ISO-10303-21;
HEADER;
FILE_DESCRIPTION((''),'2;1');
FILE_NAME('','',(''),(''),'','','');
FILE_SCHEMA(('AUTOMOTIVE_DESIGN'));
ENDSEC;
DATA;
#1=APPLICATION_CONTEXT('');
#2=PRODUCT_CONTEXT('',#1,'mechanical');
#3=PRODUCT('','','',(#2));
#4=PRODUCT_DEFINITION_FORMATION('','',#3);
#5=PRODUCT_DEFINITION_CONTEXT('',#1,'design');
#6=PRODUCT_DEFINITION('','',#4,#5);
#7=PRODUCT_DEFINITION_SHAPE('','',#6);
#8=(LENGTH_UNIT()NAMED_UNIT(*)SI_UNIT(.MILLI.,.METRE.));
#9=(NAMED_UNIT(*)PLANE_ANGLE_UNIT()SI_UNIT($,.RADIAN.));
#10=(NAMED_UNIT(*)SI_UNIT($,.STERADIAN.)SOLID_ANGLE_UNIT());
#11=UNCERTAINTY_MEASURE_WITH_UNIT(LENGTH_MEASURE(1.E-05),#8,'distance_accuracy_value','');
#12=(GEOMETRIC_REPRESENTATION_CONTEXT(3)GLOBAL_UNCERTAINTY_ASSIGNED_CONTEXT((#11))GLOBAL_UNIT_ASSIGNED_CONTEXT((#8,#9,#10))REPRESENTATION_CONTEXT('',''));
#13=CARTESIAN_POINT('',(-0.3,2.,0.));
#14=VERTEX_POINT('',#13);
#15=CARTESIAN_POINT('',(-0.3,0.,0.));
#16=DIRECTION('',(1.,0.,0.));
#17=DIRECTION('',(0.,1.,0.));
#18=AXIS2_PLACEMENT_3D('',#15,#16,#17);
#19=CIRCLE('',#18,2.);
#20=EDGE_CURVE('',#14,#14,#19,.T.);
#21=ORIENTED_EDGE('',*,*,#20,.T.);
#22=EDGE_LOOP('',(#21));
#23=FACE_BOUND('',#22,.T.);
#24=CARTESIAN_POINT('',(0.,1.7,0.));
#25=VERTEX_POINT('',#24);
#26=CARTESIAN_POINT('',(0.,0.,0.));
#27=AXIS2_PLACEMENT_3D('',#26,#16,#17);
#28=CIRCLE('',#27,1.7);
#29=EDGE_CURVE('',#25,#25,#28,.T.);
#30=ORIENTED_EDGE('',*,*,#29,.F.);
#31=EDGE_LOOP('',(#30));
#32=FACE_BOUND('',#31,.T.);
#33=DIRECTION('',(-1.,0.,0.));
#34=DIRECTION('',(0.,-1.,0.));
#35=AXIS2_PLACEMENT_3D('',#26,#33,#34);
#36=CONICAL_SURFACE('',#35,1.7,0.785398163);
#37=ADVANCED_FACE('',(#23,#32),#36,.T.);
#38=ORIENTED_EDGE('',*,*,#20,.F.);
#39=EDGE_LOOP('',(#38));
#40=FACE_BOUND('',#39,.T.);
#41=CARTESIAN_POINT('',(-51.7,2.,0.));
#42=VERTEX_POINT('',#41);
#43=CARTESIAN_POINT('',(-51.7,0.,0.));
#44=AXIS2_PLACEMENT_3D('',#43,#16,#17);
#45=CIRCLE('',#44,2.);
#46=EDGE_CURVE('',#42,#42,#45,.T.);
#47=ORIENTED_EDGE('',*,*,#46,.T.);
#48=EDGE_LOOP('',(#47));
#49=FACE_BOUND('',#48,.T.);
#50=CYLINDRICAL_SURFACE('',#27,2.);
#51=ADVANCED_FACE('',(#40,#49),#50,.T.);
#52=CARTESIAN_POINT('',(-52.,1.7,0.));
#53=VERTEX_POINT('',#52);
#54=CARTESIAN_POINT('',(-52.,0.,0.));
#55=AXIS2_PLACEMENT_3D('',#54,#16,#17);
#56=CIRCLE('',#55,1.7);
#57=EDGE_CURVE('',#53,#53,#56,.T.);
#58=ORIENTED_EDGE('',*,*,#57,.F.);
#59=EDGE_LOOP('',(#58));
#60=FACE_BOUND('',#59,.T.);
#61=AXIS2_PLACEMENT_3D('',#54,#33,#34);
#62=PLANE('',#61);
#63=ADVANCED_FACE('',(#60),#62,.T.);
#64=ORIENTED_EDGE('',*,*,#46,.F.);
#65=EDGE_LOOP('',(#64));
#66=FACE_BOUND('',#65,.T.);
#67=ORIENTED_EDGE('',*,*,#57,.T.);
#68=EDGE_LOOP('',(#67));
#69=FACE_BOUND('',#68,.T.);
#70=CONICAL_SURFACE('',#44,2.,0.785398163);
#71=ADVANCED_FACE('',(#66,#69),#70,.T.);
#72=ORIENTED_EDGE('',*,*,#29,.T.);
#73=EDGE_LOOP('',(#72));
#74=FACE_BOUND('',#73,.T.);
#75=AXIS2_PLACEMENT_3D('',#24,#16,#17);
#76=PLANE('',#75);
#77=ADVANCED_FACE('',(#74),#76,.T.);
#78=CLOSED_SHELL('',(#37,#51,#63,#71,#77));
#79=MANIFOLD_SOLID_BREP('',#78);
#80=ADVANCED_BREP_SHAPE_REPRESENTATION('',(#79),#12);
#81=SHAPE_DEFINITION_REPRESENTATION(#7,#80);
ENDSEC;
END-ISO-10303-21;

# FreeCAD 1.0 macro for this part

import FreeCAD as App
import Part
import Sketcher
from FreeCAD import Vector

doc = App.newDocument("Part")
body = doc.addObject("PartDesign::Body", "Body")

# Sketch on XY plane
sketch1 = body.newObject("Sketcher::SketchObject", "Sketch")
sketch1.AttachmentSupport = (doc.getObject("XY_Plane"), [""])
sketch1.MapMode = "FlatFace"
sketch1.addGeometry(Part.LineSegment(Vector(-52, 0, 0), Vector(0, 0, 0)), False)
sketch1.addGeometry(Part.LineSegment(Vector(0, 0, 0), Vector(0, 1.7, 0)), False)
sketch1.addGeometry(Part.LineSegment(Vector(0, 1.7, 0), Vector(-0.3, 2, 0)), False)
sketch1.addGeometry(Part.LineSegment(Vector(-0.3, 2, 0), Vector(-51.7, 2, 0)), False)
sketch1.addGeometry(Part.LineSegment(Vector(-51.7, 2, 0), Vector(-52, 1.7, 0)), False)
sketch1.addGeometry(Part.LineSegment(Vector(-52, 1.7, 0), Vector(-52, 0, 0)), False)
sketch1.addConstraint(Sketcher.Constraint("Coincident", 0, 2, 1, 1))
sketch1.addConstraint(Sketcher.Constraint("Coincident", 1, 2, 2, 1))
sketch1.addConstraint(Sketcher.Constraint("Coincident", 2, 2, 3, 1))
sketch1.addConstraint(Sketcher.Constraint("Coincident", 3, 2, 4, 1))
sketch1.addConstraint(Sketcher.Constraint("Coincident", 4, 2, 5, 1))
sketch1.addConstraint(Sketcher.Constraint("Coincident", 5, 2, 0, 1))
sketch1.addConstraint(Sketcher.Constraint("Horizontal", 0))
sketch1.addConstraint(Sketcher.Constraint("Vertical", 1))
sketch1.addConstraint(Sketcher.Constraint("Horizontal", 3))
sketch1.addConstraint(Sketcher.Constraint("Vertical", 5))
sketch1.addConstraint(Sketcher.Constraint("Coincident", 0, 2, -1, 1))
sketch1.addConstraint(Sketcher.Constraint("Perpendicular", 2, 4))
sketch1.addConstraint(Sketcher.Constraint("Horizontal", 1, 2, 4, 2))
sketch1.addConstraint(Sketcher.Constraint("Equal", 2, 4))
sketch1.addConstraint(Sketcher.Constraint("DistanceX", 0, 1, 0, 2, 52.0))
sketch1.addConstraint(Sketcher.Constraint("DistanceX", 3, 2, 3, 1, 51.4))
sketch1.addConstraint(Sketcher.Constraint("DistanceY", 1, 1, 1, 2, 1.7))
revolution = body.newObject("PartDesign::Revolution", "Revolution")
revolution.Profile = sketch1
revolution.ReferenceAxis = (sketch1, ["H_Axis"])
revolution.Angle = 360

doc.recompute()
